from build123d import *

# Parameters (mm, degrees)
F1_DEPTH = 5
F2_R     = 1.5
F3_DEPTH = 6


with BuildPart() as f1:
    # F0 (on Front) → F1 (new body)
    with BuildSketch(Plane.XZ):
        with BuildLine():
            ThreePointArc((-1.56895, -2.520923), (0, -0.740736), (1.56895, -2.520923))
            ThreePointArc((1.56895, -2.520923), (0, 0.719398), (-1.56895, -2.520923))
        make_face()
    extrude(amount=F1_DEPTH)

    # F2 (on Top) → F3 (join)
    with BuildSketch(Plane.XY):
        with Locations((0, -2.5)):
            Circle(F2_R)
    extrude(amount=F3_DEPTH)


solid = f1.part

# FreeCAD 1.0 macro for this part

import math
import FreeCAD as App
import Part
import Sketcher
from FreeCAD import Vector

doc = App.newDocument("Part")
body = doc.addObject("PartDesign::Body", "Body")

# Sketch on XZ plane
sketch1 = body.newObject("Sketcher::SketchObject", "Sketch")
sketch1.AttachmentSupport = (doc.getObject("XZ_Plane"), [""])
sketch1.MapMode = "FlatFace"
sketch1.addGeometry([
    Part.ArcOfCircle(Part.Circle(Vector(0, -2.322219, 0), Vector(0, 0, 1), 1.581483), math.radians(-7.217966), math.radians(187.217966)),
    Part.ArcOfCircle(Part.Circle(Vector(0, -1.280602, 0), Vector(0, 0, 1), 2), math.radians(-38.327853), math.radians(218.327853)),
], False)
sketch1.addConstraint([
    Sketcher.Constraint("Coincident", 0, 1, 1, 1),
    Sketcher.Constraint("Coincident", 1, 2, 0, 2),
    Sketcher.Constraint("Symmetric", 0, 1, 1, 2, -2),
    Sketcher.Constraint("Radius", 1, 2.0),
    Sketcher.Constraint("Radius", 0, 1.581483),
    Sketcher.Constraint("DistanceX", 1, 2, 0, 1, 3.1379),
    Sketcher.Constraint("DistanceY", 0, 3, -1, 1, 2.322219),
])
pad1 = body.newObject("PartDesign::Pad", "Pad")
pad1.Profile = sketch1
pad1.Length = 5

# Sketch on XY plane
sketch2 = body.newObject("Sketcher::SketchObject", "Sketch001")
sketch2.AttachmentSupport = (doc.getObject("XY_Plane"), [""])
sketch2.MapMode = "FlatFace"
sketch2.addGeometry(Part.Circle(Vector(0, -2.5, 0), Vector(0, 0, 1), 1.5), False)
sketch2.addConstraint([
    Sketcher.Constraint("PointOnObject", 0, 3, -2),
    Sketcher.Constraint("Diameter", 0, 3.0),
    Sketcher.Constraint("DistanceY", 0, 3, -1, 1, 2.5),
])
pad2 = body.newObject("PartDesign::Pad", "Pad001")
pad2.Profile = sketch2
pad2.Length = 6

doc.recompute()
